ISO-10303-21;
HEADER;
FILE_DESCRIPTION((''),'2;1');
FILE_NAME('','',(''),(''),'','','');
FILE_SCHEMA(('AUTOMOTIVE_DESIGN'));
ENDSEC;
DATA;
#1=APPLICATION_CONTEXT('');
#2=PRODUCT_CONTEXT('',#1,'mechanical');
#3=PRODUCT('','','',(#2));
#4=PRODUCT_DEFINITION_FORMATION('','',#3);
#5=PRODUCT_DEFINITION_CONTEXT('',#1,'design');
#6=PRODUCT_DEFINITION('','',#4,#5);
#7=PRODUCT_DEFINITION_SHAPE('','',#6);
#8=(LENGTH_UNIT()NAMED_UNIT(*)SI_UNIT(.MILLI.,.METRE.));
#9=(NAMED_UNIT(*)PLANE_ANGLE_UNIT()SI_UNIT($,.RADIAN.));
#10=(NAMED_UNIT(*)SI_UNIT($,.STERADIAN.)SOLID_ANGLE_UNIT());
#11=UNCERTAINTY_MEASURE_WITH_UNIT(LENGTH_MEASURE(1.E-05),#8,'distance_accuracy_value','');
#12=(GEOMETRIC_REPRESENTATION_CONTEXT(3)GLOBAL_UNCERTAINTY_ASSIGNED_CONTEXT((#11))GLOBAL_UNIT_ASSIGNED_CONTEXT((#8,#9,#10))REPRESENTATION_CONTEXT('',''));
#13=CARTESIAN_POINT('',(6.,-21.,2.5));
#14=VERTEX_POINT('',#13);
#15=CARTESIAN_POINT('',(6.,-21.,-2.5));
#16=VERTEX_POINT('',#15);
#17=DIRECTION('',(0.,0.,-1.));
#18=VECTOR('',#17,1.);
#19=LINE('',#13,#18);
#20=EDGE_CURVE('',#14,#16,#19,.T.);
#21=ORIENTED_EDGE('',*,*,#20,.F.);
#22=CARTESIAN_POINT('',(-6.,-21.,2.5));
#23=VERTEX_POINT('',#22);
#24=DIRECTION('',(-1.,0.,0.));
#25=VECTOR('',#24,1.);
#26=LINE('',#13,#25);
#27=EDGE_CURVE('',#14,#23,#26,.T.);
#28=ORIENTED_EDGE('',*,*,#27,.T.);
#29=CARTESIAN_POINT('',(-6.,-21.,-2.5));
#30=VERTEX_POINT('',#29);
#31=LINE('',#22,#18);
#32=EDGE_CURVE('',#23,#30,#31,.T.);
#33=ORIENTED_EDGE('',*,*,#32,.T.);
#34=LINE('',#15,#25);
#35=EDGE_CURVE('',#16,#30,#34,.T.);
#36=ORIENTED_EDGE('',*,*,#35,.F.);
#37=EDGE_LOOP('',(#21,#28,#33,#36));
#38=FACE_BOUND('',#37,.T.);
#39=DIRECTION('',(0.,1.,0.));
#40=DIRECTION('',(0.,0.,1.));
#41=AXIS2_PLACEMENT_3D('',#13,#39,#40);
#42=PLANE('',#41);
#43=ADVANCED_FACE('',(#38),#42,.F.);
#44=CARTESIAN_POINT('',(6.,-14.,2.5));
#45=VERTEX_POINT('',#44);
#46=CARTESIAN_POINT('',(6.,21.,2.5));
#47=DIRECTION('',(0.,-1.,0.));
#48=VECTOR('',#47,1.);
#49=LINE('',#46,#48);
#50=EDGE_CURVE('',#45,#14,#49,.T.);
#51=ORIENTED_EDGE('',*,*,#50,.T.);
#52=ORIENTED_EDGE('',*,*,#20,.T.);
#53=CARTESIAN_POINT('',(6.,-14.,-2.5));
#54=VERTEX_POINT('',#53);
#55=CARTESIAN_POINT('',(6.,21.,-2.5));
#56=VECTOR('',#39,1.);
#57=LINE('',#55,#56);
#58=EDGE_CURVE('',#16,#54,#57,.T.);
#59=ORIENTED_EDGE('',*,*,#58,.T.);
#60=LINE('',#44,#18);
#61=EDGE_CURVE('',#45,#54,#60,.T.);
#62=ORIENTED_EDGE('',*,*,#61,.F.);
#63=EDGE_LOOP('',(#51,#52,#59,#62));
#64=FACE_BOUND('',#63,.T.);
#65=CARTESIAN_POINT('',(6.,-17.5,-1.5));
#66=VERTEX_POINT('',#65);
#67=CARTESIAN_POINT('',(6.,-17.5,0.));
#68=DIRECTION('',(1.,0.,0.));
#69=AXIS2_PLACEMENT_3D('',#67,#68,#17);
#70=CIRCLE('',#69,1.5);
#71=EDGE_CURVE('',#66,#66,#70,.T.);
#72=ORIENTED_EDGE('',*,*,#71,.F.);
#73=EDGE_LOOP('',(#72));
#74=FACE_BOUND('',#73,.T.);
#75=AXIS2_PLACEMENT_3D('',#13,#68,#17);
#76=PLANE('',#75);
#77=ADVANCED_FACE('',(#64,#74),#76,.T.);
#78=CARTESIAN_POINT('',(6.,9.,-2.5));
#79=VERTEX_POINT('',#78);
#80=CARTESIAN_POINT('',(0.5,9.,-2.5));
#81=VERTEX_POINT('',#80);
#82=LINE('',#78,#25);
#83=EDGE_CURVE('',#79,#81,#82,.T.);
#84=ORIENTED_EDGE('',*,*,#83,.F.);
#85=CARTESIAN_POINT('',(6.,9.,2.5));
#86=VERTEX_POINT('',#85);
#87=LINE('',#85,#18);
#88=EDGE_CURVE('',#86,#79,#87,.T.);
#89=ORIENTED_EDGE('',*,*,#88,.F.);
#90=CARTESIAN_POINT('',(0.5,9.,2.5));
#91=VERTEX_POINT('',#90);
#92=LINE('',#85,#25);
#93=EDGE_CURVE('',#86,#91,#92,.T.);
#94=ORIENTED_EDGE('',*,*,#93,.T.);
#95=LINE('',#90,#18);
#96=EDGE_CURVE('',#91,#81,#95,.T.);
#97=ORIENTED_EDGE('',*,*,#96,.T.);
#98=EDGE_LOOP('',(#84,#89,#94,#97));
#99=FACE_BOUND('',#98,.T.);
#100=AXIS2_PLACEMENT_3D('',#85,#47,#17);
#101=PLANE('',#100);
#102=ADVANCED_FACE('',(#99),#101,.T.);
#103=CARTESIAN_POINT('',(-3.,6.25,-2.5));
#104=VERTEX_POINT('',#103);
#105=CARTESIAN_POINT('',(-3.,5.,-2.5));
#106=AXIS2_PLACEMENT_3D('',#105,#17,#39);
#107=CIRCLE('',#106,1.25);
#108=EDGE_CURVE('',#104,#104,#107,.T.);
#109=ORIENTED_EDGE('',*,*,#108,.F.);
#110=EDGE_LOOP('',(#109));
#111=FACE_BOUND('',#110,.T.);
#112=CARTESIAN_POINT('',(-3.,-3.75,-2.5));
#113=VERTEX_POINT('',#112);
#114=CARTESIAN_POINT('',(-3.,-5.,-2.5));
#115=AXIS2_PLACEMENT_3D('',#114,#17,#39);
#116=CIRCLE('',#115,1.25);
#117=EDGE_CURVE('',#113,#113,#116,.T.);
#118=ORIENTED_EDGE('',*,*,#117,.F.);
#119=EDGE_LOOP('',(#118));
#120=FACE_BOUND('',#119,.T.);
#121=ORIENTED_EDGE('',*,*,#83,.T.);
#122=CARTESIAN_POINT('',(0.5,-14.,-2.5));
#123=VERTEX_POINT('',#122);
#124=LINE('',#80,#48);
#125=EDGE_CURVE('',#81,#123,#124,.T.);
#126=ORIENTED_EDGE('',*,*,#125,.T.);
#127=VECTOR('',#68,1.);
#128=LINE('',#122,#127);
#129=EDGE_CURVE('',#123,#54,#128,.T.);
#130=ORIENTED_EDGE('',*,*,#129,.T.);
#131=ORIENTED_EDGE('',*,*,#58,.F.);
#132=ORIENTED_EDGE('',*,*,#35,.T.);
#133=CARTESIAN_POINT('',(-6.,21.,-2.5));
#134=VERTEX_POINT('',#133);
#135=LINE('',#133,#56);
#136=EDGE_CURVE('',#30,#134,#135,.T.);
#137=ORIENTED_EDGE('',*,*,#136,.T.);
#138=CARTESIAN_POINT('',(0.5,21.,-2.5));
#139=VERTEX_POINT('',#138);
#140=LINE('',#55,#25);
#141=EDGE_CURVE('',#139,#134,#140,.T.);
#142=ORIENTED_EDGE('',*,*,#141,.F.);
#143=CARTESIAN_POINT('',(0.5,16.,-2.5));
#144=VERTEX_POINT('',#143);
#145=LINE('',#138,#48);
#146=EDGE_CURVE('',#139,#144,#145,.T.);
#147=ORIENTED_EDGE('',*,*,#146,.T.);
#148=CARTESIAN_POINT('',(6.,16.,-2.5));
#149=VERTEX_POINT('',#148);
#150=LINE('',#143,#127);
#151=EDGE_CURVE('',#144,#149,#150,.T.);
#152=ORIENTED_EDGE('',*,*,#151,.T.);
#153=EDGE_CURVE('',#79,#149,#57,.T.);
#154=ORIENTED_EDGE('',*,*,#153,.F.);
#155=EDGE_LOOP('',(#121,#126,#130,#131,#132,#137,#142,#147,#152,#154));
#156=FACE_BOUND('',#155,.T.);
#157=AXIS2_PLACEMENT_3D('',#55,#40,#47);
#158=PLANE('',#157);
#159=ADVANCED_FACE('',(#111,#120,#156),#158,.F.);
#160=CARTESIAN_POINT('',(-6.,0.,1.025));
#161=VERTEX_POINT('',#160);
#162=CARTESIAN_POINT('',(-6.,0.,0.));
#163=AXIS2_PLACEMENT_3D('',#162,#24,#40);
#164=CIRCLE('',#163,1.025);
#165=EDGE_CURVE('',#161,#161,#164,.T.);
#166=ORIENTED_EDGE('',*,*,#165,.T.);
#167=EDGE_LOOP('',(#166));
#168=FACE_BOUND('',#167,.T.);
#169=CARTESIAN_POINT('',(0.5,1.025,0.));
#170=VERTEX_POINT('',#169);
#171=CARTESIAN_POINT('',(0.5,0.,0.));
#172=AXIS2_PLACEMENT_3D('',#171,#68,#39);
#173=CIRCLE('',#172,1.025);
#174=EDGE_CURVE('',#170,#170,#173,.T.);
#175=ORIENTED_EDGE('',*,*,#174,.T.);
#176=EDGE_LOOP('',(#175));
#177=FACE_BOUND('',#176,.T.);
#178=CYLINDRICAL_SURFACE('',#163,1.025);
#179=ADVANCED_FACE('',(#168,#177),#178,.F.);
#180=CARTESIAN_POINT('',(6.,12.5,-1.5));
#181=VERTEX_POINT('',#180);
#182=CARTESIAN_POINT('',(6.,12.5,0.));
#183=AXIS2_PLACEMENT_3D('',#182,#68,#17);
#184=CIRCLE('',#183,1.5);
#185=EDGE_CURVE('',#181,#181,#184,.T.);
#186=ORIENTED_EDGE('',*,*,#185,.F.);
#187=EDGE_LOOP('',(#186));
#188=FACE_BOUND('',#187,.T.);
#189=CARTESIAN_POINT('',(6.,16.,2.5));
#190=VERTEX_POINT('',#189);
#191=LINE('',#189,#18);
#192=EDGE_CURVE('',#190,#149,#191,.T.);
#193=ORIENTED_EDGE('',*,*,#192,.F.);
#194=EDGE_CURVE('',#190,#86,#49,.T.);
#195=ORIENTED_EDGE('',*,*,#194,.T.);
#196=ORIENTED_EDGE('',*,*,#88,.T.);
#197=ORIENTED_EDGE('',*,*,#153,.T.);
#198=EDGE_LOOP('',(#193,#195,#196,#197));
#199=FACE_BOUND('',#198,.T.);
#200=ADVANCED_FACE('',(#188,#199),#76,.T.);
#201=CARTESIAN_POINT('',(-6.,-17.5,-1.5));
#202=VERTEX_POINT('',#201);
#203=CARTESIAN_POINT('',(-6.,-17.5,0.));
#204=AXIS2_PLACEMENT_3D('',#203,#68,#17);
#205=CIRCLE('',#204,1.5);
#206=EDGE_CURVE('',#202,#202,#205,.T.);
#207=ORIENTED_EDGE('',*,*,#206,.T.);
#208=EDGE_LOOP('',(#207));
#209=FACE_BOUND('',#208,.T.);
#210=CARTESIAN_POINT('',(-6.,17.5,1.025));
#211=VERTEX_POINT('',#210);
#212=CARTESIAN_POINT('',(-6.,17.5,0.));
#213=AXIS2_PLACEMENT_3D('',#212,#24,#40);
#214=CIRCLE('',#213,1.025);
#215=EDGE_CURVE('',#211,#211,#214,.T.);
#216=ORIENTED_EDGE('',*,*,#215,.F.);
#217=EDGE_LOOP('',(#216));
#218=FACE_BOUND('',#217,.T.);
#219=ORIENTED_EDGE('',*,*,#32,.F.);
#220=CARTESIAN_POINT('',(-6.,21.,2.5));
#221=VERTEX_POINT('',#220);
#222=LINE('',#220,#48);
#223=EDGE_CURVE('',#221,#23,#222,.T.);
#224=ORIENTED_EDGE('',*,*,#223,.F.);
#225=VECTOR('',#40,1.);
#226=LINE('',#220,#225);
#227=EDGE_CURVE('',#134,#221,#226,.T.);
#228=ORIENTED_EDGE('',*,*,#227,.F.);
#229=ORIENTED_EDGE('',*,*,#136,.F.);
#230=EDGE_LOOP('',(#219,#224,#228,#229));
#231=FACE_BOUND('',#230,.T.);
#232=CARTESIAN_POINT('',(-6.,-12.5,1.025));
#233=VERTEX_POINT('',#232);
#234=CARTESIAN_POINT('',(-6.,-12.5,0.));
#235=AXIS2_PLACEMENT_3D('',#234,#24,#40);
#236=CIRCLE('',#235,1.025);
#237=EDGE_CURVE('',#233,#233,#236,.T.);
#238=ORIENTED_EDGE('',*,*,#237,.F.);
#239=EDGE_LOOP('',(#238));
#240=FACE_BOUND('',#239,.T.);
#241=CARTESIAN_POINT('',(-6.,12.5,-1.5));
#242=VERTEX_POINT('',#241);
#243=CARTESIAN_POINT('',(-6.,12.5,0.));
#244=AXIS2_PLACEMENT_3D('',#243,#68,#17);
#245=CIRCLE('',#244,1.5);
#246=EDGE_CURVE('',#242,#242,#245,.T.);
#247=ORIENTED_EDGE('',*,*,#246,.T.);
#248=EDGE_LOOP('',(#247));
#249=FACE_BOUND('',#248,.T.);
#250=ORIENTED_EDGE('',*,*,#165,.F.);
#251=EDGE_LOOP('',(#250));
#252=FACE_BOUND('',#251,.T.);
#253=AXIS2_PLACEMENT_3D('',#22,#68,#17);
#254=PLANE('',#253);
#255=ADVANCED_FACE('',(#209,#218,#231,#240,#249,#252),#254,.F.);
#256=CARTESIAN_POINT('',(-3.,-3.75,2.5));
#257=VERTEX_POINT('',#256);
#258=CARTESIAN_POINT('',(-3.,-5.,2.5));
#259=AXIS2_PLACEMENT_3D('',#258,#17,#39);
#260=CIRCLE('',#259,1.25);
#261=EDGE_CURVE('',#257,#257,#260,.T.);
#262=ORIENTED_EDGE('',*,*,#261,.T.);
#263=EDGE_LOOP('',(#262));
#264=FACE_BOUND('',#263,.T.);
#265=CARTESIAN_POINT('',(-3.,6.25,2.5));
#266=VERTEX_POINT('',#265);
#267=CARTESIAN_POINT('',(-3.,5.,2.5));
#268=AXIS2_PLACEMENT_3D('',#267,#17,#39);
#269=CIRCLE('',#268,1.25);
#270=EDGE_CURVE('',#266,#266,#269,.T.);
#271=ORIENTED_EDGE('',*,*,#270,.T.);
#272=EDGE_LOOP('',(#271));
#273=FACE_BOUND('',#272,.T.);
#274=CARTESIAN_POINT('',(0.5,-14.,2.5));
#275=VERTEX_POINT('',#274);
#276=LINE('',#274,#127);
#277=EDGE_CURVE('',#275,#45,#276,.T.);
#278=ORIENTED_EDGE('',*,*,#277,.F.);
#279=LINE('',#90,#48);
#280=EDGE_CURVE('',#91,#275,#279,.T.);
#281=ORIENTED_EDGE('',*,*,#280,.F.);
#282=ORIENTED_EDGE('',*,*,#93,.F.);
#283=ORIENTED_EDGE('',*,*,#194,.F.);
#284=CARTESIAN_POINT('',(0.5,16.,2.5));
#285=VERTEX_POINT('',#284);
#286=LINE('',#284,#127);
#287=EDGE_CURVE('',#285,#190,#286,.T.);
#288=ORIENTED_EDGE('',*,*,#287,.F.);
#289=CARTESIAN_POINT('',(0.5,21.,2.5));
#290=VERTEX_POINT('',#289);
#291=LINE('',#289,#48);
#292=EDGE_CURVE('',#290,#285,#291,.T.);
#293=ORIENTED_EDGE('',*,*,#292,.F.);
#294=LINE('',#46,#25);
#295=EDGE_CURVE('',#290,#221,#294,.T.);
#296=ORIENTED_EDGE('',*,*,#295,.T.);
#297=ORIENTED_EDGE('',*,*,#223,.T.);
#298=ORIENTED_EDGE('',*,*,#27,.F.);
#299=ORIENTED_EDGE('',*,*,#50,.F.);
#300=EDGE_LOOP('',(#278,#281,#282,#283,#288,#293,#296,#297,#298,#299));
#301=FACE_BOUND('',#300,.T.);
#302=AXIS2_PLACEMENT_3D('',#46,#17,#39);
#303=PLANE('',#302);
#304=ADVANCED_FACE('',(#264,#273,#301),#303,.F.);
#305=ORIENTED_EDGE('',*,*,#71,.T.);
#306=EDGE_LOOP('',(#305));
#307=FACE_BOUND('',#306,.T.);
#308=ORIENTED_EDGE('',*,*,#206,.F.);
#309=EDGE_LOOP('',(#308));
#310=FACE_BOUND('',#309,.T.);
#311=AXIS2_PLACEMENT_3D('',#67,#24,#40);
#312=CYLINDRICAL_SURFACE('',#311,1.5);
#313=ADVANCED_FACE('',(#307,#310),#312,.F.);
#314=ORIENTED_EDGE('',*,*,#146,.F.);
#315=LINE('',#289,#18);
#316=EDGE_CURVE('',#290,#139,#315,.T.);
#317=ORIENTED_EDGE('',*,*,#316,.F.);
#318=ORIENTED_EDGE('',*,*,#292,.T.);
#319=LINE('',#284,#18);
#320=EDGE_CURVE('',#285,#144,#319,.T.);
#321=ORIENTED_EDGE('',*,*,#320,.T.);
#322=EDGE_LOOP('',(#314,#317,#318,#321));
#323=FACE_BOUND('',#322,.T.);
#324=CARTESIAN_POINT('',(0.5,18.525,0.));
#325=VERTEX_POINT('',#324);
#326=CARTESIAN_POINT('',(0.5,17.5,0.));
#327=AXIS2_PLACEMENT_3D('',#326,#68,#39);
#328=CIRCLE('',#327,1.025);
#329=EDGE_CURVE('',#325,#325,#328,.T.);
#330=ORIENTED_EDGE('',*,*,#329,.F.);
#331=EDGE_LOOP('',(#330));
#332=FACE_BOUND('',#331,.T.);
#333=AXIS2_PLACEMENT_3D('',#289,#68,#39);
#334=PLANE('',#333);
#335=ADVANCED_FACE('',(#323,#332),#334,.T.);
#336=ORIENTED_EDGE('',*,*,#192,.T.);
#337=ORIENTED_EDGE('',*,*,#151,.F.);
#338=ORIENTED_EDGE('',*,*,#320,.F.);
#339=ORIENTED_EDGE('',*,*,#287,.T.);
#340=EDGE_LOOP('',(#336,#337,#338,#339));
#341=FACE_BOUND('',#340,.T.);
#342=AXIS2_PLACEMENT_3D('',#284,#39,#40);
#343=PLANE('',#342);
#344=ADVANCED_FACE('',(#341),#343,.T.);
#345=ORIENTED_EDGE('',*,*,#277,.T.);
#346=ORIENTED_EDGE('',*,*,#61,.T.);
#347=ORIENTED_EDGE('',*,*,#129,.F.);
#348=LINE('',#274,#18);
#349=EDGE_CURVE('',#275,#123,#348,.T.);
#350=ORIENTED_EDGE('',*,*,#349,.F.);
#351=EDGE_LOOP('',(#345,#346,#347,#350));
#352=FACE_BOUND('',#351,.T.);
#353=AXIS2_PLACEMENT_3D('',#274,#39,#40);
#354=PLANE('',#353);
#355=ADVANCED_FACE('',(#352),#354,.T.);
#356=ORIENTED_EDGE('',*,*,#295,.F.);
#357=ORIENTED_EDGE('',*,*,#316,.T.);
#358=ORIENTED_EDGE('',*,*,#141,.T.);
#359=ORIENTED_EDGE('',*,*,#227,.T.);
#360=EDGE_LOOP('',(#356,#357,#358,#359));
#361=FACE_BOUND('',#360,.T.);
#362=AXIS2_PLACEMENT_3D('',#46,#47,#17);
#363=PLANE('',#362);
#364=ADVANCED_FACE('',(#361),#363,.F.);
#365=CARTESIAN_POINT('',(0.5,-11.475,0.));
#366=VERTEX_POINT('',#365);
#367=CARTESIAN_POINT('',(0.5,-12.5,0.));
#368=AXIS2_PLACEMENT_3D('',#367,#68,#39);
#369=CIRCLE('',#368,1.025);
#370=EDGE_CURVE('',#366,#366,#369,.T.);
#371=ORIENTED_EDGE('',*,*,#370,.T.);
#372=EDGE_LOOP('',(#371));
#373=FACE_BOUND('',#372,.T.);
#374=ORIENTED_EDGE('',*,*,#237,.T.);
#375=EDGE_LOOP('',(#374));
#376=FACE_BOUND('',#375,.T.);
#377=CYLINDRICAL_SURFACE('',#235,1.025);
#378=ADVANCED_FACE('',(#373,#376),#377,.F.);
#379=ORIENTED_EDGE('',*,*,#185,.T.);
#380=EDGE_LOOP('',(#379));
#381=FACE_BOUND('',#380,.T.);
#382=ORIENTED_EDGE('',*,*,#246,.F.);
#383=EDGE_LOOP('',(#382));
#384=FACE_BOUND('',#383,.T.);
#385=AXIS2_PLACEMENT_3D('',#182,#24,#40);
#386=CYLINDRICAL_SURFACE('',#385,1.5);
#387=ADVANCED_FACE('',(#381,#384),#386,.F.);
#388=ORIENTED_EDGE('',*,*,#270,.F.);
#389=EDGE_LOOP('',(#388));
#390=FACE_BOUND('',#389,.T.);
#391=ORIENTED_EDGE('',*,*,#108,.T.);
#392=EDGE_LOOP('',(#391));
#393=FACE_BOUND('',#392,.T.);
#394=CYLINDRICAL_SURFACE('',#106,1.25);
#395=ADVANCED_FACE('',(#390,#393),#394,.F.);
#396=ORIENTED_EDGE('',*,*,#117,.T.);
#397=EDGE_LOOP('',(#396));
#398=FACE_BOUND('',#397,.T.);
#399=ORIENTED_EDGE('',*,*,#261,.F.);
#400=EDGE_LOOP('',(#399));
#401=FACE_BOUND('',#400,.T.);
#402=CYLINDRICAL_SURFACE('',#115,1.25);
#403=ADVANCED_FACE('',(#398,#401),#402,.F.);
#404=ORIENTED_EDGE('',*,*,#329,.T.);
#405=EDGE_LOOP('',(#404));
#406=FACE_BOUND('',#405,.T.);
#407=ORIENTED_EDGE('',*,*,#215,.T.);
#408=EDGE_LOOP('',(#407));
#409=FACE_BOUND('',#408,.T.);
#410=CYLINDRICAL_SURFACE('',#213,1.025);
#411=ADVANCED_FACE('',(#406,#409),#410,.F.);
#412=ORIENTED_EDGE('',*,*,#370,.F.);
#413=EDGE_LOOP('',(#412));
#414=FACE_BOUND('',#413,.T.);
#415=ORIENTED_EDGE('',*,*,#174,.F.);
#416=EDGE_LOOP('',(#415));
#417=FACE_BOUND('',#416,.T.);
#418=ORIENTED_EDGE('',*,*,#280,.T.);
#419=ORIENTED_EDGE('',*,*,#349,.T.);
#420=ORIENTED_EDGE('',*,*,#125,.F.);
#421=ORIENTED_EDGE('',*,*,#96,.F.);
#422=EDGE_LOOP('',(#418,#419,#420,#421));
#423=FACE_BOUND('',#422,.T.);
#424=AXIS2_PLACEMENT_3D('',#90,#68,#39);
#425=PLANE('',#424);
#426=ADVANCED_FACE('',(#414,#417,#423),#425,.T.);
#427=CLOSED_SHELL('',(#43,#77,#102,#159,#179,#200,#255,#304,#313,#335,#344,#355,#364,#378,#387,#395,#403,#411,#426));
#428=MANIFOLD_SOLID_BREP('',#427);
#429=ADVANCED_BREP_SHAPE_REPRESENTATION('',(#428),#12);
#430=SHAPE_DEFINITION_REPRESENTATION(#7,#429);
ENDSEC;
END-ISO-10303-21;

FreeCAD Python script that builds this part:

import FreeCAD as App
import Part
import Sketcher
Q = App.Units.Quantity


def add_polygon(sketch, points):
    """Adds a closed chain of lines whose ends are joined by coincident constraints."""
    first, n = sketch.GeometryCount, len(points)
    for a, b in zip(points, points[1:] + points[:1]):
        sketch.addGeometry(Part.LineSegment(App.Vector(*a, 0), App.Vector(*b, 0)), False)
    for i in range(n):
        sketch.addConstraint(Sketcher.Constraint("Coincident", first + i, 2, first + (i + 1) % n, 1))

doc = App.newDocument("Part")
body = doc.addObject("PartDesign::Body", "Body")

sketch1 = body.newObject("Sketcher::SketchObject", "Sketch")
sketch1.AttachmentSupport = (doc.getObject("YZ_Plane"), [""])
sketch1.MapMode = "FlatFace"
add_polygon(sketch1, [(21, 2.5), (-21, 2.5), (-21, -2.5), (21, -2.5)])
sketch1.addGeometry(Part.Circle(App.Vector(-17.5, 0, 0), App.Vector(0, 0, 1), 1.5), False)
sketch1.addGeometry(Part.Circle(App.Vector(12.5, 0, 0), App.Vector(0, 0, 1), 1.5), False)
sketch1.addConstraint([
    Sketcher.Constraint("Horizontal", 0),
    Sketcher.Constraint("Vertical", 1),
    Sketcher.Constraint("Horizontal", 2),
    Sketcher.Constraint("Vertical", 3),
    Sketcher.Constraint("Equal", 4, 5),
    Sketcher.Constraint("Symmetric", 0, 2, 2, 2, -1, 1),
    Sketcher.Constraint("PointOnObject", 4, 3, -1),
    Sketcher.Constraint("PointOnObject", 5, 3, -1),
    Sketcher.Constraint("Diameter", 4, Q("3 mm")),
    Sketcher.Constraint("DistanceX", 0, 2, 0, 1, Q("42 mm")),
    Sketcher.Constraint("DistanceY", 1, 2, 1, 1, Q("5 mm")),
    Sketcher.Constraint("DistanceX", 4, 3, 5, 3, Q("30 mm")),
    Sketcher.Constraint("DistanceX", 4, 3, -1, 1, Q("17.5 mm")),
])
pad1 = body.newObject("PartDesign::Pad", "Pad")
pad1.Profile = sketch1
pad1.Length = 12
pad1.Midplane = True

sketch2 = body.newObject("Sketcher::SketchObject", "Sketch001")
sketch2.AttachmentSupport = (doc.getObject("XY_Plane"), [""])
sketch2.MapMode = "FlatFace"
sketch2.AttachmentOffset = App.Placement(App.Vector(0, 0, -2.5), App.Rotation())
sketch2.addGeometry([
    Part.Circle(App.Vector(-3, 5, 0), App.Vector(0, 0, 1), 1.25),
    Part.Circle(App.Vector(-3, -5, 0), App.Vector(0, 0, 1), 1.25),
], False)
sketch2.addConstraint([
    Sketcher.Constraint("Equal", 0, 1),
    Sketcher.Constraint("Symmetric", 0, 3, 1, 3, -1),
    Sketcher.Constraint("Diameter", 0, Q("2.5 mm")),
    Sketcher.Constraint("DistanceX", 0, 3, -1, 1, Q("3 mm")),
    Sketcher.Constraint("DistanceY", -1, 1, 0, 3, Q("5 mm")),
])
doc.recompute()
hole = body.newObject("PartDesign::Hole", "Hole")
hole.Profile = sketch2
hole.ThreadType = "None"
hole.Diameter = 2.5
hole.DepthType = "ThroughAll"
hole.Reversed = True

sketch3 = body.newObject("Sketcher::SketchObject", "Sketch002")
sketch3.AttachmentSupport = (doc.getObject("XY_Plane"), [""])
sketch3.MapMode = "FlatFace"
sketch3.AttachmentOffset = App.Placement(App.Vector(0, 0, -2.5), App.Rotation())
add_polygon(sketch3, [(11.397, 26.397), (11.397, -26.397), (-11.397, -26.397), (-11.397, 26.397)])
add_polygon(sketch3, [(0.5, 21), (-6, 21), (-6, -21), (6, -21), (6, -14), (0.5, -14), (0.5, 9), (6, 9), (6, 16), (0.5, 16)])
sketch3.addConstraint([
    Sketcher.Constraint("Vertical", 0),
    Sketcher.Constraint("Horizontal", 1),
    Sketcher.Constraint("Vertical", 2),
    Sketcher.Constraint("Horizontal", 3),
    Sketcher.Constraint("Horizontal", 4),
    Sketcher.Constraint("Vertical", 5),
    Sketcher.Constraint("Horizontal", 6),
    Sketcher.Constraint("Vertical", 7),
    Sketcher.Constraint("Horizontal", 8),
    Sketcher.Constraint("Vertical", 9),
    Sketcher.Constraint("Horizontal", 10),
    Sketcher.Constraint("Vertical", 11),
    Sketcher.Constraint("Horizontal", 12),
    Sketcher.Constraint("Vertical", 13),
    Sketcher.Constraint("Symmetric", 0, 2, 2, 2, -1, 1),
    Sketcher.Constraint("Symmetric", 4, 2, 6, 2, -1, 1),
    Sketcher.Constraint("Vertical", 7, 2, 10, 2),
    Sketcher.Constraint("Vertical", 9, 2, 12, 2),
    Sketcher.Constraint("Equal", 7, 11),
    Sketcher.Constraint("DistanceX", 6, 1, 6, 2, Q("12 mm")),
    Sketcher.Constraint("DistanceY", 5, 2, 5, 1, Q("42 mm")),
    Sketcher.Constraint("DistanceY", 7, 1, 7, 2, Q("7 mm")),
    Sketcher.Constraint("DistanceY", 9, 1, 9, 2, Q("23 mm")),
    Sketcher.Constraint("DistanceX", 4, 2, 4, 1, Q("6.5 mm")),
    Sketcher.Constraint("DistanceX", 1, 2, 1, 1, Q("22.794 mm")),
    Sketcher.Constraint("DistanceY", 0, 2, 0, 1, Q("52.794 mm")),
])
pocket1 = body.newObject("PartDesign::Pocket", "Pocket")
pocket1.Profile = sketch3
pocket1.Type = "ThroughAll"
pocket1.Reversed = True

sketch4 = body.newObject("Sketcher::SketchObject", "Sketch003")
sketch4.AttachmentSupport = (doc.getObject("YZ_Plane"), [""])
sketch4.MapMode = "FlatFace"
sketch4.AttachmentOffset = App.Placement(App.Vector(0, 0, -6), App.Rotation())
sketch4.addGeometry([
    Part.Circle(App.Vector(17.5, 0, 0), App.Vector(0, 0, 1), 1.025),
    Part.Circle(App.Vector(0, 0, 0), App.Vector(0, 0, 1), 1.025),
    Part.Circle(App.Vector(-12.5, 0, 0), App.Vector(0, 0, 1), 1.025),
], False)
sketch4.addConstraint([
    Sketcher.Constraint("Coincident", 1, 3, -1, 1),
    Sketcher.Constraint("Equal", 0, 1),
    Sketcher.Constraint("Equal", 1, 2),
    Sketcher.Constraint("PointOnObject", 0, 3, -1),
    Sketcher.Constraint("PointOnObject", 2, 3, -1),
    Sketcher.Constraint("Diameter", 0, Q("2.05 mm")),
    Sketcher.Constraint("DistanceX", 2, 3, 0, 3, Q("30 mm")),
    Sketcher.Constraint("DistanceX", -1, 1, 0, 3, Q("17.5 mm")),
])
doc.recompute()
hole2 = body.newObject("PartDesign::Hole", "Hole001")
hole2.Profile = sketch4
hole2.ThreadType = "None"
hole2.Diameter = 2.05
hole2.DepthType = "ThroughAll"
hole2.Reversed = True

doc.recompute()
